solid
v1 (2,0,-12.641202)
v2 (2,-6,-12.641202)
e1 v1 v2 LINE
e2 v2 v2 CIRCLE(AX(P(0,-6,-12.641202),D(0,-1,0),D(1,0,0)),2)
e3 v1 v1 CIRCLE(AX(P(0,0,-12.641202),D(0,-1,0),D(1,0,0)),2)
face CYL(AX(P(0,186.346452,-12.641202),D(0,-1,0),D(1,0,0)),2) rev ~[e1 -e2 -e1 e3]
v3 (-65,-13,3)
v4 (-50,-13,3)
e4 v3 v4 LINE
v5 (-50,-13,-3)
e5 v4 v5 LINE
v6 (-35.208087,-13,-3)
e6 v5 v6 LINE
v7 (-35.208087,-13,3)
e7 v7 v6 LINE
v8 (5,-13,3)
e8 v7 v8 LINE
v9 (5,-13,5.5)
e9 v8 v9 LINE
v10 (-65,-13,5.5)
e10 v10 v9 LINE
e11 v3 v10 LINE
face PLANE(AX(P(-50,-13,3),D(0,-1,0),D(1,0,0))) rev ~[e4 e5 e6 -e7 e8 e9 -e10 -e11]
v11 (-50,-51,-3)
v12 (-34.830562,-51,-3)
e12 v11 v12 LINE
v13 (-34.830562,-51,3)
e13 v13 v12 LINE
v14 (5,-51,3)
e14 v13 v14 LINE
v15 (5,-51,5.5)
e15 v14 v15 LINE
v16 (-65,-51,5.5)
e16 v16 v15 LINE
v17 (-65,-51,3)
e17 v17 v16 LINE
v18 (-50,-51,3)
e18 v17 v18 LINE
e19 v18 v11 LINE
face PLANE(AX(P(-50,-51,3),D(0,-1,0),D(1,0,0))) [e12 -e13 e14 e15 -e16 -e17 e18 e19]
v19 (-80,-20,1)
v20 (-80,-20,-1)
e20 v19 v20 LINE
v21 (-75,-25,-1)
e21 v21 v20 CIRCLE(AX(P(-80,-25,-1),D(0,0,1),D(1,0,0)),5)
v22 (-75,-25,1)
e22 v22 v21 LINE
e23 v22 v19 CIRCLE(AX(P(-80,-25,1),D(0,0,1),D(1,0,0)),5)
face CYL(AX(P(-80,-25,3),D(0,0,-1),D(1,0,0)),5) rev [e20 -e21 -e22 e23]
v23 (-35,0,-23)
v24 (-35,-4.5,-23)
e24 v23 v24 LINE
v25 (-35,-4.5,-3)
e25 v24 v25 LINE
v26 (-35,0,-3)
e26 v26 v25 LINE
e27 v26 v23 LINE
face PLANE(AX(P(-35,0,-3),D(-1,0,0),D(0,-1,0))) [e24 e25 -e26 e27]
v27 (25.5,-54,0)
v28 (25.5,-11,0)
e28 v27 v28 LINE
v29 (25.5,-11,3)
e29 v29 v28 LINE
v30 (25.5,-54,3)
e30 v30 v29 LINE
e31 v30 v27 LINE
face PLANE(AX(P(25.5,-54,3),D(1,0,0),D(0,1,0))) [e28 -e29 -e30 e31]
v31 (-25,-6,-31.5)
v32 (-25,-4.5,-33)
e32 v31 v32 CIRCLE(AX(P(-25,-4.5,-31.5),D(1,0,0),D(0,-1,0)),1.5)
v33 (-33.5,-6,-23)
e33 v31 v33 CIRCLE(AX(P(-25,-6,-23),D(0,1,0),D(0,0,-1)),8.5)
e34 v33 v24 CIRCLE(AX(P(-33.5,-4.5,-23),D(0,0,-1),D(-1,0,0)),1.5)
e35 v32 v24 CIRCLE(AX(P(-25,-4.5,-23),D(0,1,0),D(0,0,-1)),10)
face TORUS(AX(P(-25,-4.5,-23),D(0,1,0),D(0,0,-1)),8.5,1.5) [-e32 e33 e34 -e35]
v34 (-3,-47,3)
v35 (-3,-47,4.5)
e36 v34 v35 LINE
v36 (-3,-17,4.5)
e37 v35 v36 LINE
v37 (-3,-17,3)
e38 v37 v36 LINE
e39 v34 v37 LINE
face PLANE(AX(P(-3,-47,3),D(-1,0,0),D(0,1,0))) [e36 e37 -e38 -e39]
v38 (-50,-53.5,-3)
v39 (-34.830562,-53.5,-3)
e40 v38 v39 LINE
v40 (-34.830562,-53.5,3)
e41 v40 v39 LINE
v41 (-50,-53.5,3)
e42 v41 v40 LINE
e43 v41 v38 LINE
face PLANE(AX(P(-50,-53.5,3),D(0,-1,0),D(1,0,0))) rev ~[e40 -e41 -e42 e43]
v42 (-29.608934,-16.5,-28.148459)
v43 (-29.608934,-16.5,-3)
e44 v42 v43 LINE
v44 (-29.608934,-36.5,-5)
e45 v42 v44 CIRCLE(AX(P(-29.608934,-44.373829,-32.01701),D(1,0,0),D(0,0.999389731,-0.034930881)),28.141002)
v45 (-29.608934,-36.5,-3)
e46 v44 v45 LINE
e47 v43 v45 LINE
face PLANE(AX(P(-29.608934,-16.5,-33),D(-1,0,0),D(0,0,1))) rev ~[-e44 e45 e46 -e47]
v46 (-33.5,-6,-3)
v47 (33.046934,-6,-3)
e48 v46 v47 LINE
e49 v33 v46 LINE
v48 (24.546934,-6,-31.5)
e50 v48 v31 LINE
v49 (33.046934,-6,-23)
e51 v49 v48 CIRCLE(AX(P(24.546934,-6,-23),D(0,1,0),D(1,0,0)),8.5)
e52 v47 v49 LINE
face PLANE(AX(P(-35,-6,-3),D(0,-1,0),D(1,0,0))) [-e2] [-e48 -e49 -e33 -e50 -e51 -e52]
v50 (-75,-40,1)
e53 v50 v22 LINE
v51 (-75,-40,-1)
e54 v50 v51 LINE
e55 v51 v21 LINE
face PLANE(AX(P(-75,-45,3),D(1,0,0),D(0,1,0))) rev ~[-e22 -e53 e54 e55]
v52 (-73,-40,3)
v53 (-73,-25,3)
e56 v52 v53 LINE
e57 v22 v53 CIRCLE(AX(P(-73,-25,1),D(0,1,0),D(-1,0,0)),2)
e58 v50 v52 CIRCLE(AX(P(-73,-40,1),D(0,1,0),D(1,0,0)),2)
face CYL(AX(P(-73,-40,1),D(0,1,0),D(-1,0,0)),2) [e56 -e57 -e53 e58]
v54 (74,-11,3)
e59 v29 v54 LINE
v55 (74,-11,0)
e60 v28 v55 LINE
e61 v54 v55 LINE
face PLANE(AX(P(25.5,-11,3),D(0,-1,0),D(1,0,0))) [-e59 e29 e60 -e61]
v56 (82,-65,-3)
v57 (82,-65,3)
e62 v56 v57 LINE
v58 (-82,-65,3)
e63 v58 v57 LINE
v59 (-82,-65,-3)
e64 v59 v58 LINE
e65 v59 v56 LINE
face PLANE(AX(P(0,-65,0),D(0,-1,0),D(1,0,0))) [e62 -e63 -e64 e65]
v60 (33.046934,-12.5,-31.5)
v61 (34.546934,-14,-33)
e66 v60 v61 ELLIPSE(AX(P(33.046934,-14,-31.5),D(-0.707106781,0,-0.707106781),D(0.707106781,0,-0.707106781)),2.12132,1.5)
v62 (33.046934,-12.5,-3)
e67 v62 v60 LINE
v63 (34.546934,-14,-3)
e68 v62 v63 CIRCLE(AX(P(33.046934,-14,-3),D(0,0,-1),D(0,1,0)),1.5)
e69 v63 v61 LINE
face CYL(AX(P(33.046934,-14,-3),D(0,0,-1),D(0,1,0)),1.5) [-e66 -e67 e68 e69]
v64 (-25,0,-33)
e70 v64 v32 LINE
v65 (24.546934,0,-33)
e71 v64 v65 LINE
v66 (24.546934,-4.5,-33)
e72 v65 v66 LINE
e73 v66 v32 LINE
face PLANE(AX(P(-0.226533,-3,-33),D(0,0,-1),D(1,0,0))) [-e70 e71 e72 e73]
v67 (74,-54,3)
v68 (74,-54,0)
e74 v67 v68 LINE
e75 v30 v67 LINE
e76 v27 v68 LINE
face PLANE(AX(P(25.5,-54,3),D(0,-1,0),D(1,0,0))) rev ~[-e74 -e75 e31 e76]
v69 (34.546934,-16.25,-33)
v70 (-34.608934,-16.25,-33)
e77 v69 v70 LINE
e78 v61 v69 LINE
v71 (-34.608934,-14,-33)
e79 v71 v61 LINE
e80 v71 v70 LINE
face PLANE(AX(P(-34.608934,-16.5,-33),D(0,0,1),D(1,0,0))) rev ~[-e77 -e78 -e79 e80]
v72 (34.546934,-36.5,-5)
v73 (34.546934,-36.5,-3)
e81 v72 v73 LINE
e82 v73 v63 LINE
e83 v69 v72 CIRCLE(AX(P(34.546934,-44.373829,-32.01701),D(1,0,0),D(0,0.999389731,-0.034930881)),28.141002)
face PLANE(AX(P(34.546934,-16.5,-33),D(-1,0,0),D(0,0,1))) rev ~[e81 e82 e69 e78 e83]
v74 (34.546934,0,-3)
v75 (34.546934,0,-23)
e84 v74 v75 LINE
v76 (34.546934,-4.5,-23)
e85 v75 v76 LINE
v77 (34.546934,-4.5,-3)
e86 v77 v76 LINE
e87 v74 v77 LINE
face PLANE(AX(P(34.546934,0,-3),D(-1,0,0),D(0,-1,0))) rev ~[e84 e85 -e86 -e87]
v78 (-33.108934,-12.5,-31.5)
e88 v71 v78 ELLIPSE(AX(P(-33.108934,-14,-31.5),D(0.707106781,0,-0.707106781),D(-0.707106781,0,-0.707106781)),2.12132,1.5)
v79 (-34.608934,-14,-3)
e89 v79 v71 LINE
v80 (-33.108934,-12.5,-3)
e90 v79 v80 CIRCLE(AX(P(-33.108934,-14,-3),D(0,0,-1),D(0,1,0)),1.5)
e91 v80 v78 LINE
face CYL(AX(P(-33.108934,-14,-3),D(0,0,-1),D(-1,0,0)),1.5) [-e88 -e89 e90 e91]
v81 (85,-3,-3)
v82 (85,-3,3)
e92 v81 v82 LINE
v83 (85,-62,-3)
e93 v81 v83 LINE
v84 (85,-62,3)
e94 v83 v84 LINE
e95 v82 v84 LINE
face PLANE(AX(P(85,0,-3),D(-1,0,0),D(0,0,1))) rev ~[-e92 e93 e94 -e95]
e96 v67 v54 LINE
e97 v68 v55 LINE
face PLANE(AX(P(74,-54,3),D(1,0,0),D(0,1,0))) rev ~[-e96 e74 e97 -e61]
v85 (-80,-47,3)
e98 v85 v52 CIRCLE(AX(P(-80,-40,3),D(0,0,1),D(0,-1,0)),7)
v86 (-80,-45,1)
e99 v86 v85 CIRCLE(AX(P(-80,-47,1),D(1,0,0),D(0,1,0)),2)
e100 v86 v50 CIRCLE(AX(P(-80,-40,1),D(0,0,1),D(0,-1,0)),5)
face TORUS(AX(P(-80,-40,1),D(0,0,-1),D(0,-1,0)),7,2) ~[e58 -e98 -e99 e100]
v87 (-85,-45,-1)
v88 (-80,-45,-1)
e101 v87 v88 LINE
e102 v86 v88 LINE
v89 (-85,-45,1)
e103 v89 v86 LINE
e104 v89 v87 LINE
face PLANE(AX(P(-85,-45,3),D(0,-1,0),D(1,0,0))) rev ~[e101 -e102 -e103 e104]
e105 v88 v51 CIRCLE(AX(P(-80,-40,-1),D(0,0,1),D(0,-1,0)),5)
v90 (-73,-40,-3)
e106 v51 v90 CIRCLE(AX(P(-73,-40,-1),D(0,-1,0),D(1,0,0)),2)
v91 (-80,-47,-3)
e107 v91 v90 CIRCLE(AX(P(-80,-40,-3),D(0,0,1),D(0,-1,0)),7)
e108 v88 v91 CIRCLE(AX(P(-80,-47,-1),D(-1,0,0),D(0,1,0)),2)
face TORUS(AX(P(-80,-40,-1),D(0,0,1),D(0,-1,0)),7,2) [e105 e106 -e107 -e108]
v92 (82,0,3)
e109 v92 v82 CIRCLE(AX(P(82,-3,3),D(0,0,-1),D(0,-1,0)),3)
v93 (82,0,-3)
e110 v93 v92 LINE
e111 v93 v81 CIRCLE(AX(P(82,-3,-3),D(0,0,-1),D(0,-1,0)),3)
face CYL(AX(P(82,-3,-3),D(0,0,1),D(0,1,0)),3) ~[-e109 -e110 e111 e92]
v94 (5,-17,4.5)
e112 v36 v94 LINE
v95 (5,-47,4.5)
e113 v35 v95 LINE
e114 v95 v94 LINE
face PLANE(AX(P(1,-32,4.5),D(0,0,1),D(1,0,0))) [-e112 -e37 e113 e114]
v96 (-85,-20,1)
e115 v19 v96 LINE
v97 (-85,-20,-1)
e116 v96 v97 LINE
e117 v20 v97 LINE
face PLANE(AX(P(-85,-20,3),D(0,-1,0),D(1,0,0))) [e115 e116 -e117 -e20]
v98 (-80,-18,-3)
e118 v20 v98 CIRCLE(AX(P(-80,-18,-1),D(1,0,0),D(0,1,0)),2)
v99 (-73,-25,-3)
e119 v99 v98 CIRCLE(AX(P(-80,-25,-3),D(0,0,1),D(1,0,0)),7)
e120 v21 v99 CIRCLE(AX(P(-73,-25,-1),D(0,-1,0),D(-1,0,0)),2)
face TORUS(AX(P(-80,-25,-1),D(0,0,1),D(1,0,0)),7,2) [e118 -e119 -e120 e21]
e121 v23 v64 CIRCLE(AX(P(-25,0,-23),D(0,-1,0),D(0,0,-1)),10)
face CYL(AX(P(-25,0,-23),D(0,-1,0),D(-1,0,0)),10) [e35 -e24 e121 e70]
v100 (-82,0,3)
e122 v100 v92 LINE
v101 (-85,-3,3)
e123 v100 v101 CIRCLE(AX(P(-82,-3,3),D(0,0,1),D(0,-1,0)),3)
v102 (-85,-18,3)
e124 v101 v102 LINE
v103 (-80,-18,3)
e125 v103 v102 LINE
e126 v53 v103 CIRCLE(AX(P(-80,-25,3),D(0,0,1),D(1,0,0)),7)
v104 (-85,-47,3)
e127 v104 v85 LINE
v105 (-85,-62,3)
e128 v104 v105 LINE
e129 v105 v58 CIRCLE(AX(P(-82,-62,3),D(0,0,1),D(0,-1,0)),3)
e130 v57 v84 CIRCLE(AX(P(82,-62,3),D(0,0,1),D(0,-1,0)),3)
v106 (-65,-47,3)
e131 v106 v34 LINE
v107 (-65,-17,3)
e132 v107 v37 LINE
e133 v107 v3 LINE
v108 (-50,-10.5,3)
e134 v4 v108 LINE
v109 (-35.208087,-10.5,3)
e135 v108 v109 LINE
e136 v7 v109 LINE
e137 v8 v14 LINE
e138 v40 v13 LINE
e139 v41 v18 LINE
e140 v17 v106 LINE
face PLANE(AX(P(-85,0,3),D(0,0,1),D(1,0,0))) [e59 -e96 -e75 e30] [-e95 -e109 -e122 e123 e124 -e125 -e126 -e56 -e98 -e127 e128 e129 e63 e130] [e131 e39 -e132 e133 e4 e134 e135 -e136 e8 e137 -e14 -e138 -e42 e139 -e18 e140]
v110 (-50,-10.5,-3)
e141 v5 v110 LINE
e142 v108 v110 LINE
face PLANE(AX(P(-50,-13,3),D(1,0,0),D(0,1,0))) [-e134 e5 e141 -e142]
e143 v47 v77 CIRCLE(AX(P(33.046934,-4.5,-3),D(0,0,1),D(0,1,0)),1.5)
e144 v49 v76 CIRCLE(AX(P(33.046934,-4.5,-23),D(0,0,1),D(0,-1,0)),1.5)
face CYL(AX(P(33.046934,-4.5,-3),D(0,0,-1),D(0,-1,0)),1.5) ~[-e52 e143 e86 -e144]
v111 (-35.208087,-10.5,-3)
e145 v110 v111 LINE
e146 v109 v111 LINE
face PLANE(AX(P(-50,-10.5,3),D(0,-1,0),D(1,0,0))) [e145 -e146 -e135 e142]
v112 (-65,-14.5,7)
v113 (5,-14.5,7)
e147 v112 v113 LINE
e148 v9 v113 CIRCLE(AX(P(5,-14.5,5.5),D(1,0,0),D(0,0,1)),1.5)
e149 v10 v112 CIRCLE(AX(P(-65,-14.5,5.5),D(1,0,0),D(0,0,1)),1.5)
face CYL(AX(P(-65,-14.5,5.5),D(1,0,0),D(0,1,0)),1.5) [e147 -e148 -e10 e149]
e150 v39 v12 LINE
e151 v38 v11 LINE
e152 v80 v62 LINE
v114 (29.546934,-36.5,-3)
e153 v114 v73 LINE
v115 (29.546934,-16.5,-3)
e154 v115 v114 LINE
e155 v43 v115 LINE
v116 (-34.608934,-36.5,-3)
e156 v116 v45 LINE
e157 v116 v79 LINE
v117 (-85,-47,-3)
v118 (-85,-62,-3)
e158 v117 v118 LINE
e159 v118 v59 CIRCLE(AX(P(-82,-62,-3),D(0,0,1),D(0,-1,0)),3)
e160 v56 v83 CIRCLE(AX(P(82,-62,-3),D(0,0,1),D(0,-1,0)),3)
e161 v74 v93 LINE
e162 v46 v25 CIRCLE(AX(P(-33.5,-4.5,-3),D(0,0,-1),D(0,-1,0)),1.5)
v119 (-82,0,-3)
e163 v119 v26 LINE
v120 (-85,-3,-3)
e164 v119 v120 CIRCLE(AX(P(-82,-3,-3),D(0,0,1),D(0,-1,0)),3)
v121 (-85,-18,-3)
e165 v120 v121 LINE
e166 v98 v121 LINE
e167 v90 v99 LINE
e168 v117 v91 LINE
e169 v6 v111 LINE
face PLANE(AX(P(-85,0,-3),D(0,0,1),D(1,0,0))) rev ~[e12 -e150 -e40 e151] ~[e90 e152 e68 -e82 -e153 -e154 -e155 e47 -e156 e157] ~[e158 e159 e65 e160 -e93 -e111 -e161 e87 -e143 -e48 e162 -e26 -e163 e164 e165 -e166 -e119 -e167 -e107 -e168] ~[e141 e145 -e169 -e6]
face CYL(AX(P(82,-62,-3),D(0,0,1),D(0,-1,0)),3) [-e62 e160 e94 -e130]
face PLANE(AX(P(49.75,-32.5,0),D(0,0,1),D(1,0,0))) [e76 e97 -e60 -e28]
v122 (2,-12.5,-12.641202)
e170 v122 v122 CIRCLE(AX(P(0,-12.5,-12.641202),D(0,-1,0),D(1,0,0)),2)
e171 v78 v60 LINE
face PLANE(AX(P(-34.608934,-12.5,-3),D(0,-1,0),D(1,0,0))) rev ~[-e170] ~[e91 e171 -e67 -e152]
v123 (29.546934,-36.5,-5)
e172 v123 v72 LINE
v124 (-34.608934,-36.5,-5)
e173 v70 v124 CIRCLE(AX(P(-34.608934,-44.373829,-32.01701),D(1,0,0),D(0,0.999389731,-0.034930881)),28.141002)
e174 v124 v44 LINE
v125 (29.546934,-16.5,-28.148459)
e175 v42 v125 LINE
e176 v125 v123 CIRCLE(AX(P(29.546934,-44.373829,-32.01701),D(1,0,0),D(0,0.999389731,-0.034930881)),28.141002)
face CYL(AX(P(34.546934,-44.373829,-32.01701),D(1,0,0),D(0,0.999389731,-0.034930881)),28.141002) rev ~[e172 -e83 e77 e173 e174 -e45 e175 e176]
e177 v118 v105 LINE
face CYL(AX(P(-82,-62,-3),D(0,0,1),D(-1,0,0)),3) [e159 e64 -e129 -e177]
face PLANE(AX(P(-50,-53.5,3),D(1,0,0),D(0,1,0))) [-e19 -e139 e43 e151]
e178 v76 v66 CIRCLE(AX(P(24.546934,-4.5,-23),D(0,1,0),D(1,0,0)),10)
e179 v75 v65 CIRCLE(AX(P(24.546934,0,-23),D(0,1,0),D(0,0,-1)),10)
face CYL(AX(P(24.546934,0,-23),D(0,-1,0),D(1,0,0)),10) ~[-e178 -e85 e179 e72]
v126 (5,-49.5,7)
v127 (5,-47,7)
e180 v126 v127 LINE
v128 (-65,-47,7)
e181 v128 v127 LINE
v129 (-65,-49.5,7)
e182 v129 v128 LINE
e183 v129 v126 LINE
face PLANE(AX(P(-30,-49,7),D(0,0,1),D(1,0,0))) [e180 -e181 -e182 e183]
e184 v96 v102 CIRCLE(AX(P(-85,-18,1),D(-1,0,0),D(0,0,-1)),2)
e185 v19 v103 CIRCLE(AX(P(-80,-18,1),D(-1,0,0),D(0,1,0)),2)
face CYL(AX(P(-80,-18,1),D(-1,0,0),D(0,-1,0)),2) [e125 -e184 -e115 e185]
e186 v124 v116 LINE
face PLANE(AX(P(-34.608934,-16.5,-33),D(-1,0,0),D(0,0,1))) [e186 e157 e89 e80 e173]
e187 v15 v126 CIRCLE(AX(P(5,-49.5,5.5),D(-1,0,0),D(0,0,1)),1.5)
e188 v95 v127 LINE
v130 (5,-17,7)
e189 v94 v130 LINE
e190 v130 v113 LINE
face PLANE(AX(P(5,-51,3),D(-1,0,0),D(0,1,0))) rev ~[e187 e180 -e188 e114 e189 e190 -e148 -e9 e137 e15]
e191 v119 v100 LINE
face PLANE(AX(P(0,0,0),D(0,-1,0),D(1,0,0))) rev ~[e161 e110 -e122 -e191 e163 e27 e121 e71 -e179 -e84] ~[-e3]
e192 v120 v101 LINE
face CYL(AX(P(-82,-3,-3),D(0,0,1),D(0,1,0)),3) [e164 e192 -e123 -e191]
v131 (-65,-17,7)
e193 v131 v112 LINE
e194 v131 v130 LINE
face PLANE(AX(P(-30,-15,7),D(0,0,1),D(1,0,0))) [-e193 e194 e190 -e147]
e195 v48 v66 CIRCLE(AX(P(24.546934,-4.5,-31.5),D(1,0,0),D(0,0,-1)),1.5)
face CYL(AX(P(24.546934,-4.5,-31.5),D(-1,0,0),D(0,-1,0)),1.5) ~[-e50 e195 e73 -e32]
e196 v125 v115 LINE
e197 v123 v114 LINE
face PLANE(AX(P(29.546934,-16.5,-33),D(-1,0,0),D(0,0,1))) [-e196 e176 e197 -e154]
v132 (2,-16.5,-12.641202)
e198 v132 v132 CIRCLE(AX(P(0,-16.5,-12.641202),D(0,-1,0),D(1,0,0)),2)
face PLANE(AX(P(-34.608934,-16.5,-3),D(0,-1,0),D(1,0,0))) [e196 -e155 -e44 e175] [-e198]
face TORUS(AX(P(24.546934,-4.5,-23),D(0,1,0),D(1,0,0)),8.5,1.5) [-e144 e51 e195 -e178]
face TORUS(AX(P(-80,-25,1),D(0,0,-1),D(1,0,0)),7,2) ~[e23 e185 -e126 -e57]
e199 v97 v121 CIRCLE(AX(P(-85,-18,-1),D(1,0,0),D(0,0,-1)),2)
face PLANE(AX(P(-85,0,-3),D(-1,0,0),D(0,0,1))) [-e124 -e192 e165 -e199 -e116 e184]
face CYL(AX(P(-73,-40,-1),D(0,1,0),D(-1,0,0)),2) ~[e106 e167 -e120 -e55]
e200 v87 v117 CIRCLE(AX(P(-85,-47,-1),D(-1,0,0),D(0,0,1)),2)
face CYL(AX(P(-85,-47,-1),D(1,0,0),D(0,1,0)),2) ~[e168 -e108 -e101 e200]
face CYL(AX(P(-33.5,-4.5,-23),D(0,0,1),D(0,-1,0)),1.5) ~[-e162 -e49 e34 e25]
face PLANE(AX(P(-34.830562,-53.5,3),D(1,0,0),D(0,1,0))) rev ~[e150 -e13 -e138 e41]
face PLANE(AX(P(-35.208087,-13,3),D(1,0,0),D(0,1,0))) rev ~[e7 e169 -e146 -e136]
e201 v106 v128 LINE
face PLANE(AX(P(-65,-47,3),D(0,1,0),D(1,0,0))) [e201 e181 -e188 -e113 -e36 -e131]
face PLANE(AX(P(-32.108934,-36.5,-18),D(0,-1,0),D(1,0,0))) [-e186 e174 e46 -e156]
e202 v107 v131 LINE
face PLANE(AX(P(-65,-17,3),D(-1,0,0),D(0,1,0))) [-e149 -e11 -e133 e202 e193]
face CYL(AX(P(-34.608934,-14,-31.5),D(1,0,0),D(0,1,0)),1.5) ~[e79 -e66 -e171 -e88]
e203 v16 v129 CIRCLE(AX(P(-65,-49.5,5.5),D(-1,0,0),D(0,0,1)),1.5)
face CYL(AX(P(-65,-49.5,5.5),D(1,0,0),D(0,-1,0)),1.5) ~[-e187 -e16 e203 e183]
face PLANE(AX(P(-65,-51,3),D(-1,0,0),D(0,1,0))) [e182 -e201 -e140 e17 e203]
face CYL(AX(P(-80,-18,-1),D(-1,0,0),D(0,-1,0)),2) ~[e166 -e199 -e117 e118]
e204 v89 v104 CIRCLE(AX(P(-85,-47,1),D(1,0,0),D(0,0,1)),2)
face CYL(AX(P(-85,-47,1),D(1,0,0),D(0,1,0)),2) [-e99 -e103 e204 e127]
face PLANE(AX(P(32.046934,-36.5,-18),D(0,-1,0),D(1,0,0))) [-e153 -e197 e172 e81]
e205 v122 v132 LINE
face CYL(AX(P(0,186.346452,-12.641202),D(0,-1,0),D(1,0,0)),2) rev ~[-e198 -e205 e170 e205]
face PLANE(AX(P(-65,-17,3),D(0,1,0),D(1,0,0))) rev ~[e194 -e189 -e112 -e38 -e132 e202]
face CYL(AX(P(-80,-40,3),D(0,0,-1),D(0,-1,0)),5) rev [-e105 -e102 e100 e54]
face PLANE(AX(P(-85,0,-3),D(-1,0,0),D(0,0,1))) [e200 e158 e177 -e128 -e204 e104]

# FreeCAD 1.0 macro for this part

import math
import FreeCAD as App
import Part
import Sketcher


def edges_at(feature, points):
    """Names of the edges that pass closest to the given points."""
    edges = feature.Shape.Edges
    near = lambda p: min(range(len(edges)), key=lambda i: edges[i].distToShape(Part.Vertex(*p))[0])
    return sorted({f"Edge{near(p) + 1}" for p in points})

doc = App.newDocument("Part")
params = doc.addObject("Spreadsheet::Sheet", "Params")
for row, (alias, value) in enumerate([
    ("sketch1_width", "170 mm"),
    ("sketch1_height", "6 mm"),
    ("pad1_length", "65 mm"),
    ("sketch2_height", "43 mm"),
    ("sketch2_width", "48.5 mm"),
    ("pocket1_length", "3 mm"),
    ("sketch3_width", "70 mm"),
    ("sketch3_height", "4 mm"),
    ("pad2_length", "4 mm"),
    ("sketch4_height", "4 mm"),
    ("sketch4_height2", "6 mm"),
    ("pad3_length", "30 mm"),
    ("sketch5_width", "5 mm"),
    ("sketch5_height", "30 mm"),
    ("pad4_length", "20 mm"),
    ("chamfer_size", "28 mm"),
    ("chamfer_size2", "18 mm"),
    ("chamfer2_size", "28 mm"),
    ("chamfer2_size2", "18 mm"),
    ("sketch6_height", "2.5 mm"),
    ("fillet_radius", "10 mm"),
    ("fillet2_radius", "1.5 mm"),
    ("fillet3_radius", "1.5 mm"),
    ("fillet4_radius", "3 mm"),
    ("sketch7_width", "2.25 mm"),
    ("sketch8_diameter", "4 mm"),
    ("hole_diameter", "4 mm"),
    ("sketch9_width", "10 mm"),
    ("sketch9_height", "25 mm"),
    ("pocket4_length", "25 mm"),
    ("fillet5_radius", "5 mm"),
    ("fillet6_radius", "2 mm"),
    ("fillet7_radius", "2 mm"),
    ("fillet8_radius", "1.5 mm"),
    ("sketch10_width", "8 mm"),
    ("sketch10_height", "30 mm"),
    ("pad5_length", "1.5 mm"),
], start=1):
    params.set(f"A{row}", alias)
    params.set(f"B{row}", "=" + value)
    params.setAlias(f"B{row}", alias)

body = doc.addObject("PartDesign::Body", "Body")

sketch1 = body.newObject("Sketcher::SketchObject", "Sketch")
sketch1.AttachmentSupport = (doc.getObject("XZ_Plane"), [""])
sketch1.MapMode = "FlatFace"
sketch1.addGeometry(Part.LineSegment(App.Vector(-85, 3, 0), App.Vector(-85, -3, 0)), False)
sketch1.addGeometry(Part.LineSegment(App.Vector(-85, -3, 0), App.Vector(85, -3, 0)), False)
sketch1.addGeometry(Part.LineSegment(App.Vector(85, -3, 0), App.Vector(85, 3, 0)), False)
sketch1.addGeometry(Part.LineSegment(App.Vector(85, 3, 0), App.Vector(-85, 3, 0)), False)
sketch1.addConstraint(Sketcher.Constraint("Coincident", 0, 2, 1, 1))
sketch1.addConstraint(Sketcher.Constraint("Coincident", 1, 2, 2, 1))
sketch1.addConstraint(Sketcher.Constraint("Coincident", 2, 2, 3, 1))
sketch1.addConstraint(Sketcher.Constraint("Coincident", 3, 2, 0, 1))
sketch1.addConstraint(Sketcher.Constraint("Vertical", 0))
sketch1.addConstraint(Sketcher.Constraint("Horizontal", 1))
sketch1.addConstraint(Sketcher.Constraint("Vertical", 2))
sketch1.addConstraint(Sketcher.Constraint("Horizontal", 3))
sketch1.addConstraint(Sketcher.Constraint("Symmetric", 0, 2, 2, 2, -1, 1))
sketch1.addConstraint(Sketcher.Constraint("DistanceX", 1, 1, 1, 2, 170.0))
sketch1.addConstraint(Sketcher.Constraint("DistanceY", 0, 2, 0, 1, 6.0))
sketch1.setExpression("Constraints[9]", "Params.sketch1_width")
sketch1.setExpression("Constraints[10]", "Params.sketch1_height")
pad1 = body.newObject("PartDesign::Pad", "Pad")
pad1.Profile = sketch1
pad1.setExpression("Length", "Params.pad1_length")

sketch2 = body.newObject("Sketcher::SketchObject", "Sketch001")
sketch2.AttachmentSupport = (doc.getObject("XY_Plane"), [""])
sketch2.MapMode = "FlatFace"
sketch2.AttachmentOffset = App.Placement(App.Vector(0, 0, 3), App.Rotation())
sketch2.addGeometry(Part.LineSegment(App.Vector(25.5, -11, 0), App.Vector(25.5, -54, 0)), False)
sketch2.addGeometry(Part.LineSegment(App.Vector(25.5, -54, 0), App.Vector(74, -54, 0)), False)
sketch2.addGeometry(Part.LineSegment(App.Vector(74, -54, 0), App.Vector(74, -11, 0)), False)
sketch2.addGeometry(Part.LineSegment(App.Vector(74, -11, 0), App.Vector(25.5, -11, 0)), False)
sketch2.addConstraint(Sketcher.Constraint("Coincident", 0, 2, 1, 1))
sketch2.addConstraint(Sketcher.Constraint("Coincident", 1, 2, 2, 1))
sketch2.addConstraint(Sketcher.Constraint("Coincident", 2, 2, 3, 1))
sketch2.addConstraint(Sketcher.Constraint("Coincident", 3, 2, 0, 1))
sketch2.addConstraint(Sketcher.Constraint("Vertical", 0))
sketch2.addConstraint(Sketcher.Constraint("Horizontal", 1))
sketch2.addConstraint(Sketcher.Constraint("Vertical", 2))
sketch2.addConstraint(Sketcher.Constraint("Horizontal", 3))
sketch2.addConstraint(Sketcher.Constraint("DistanceY", 0, 2, 0, 1, 43.0))
sketch2.addConstraint(Sketcher.Constraint("DistanceX", 1, 1, 1, 2, 48.5))
sketch2.addConstraint(Sketcher.Constraint("DistanceY", 0, 2, -1, 1, 54.0))
sketch2.addConstraint(Sketcher.Constraint("DistanceX", -1, 1, 1, 2, 74.0))
sketch2.setExpression("Constraints[8]", "Params.sketch2_height")
sketch2.setExpression("Constraints[9]", "Params.sketch2_width")
pocket1 = body.newObject("PartDesign::Pocket", "Pocket")
pocket1.Profile = sketch2
pocket1.setExpression("Length", "Params.pocket1_length")

sketch3 = body.newObject("Sketcher::SketchObject", "Sketch002")
sketch3.AttachmentSupport = (doc.getObject("XY_Plane"), [""])
sketch3.MapMode = "FlatFace"
sketch3.AttachmentOffset = App.Placement(App.Vector(0, 0, 3), App.Rotation())
sketch3.addGeometry(Part.LineSegment(App.Vector(-65, -13, 0), App.Vector(-65, -17, 0)), False)
sketch3.addGeometry(Part.LineSegment(App.Vector(-65, -17, 0), App.Vector(5, -17, 0)), False)
sketch3.addGeometry(Part.LineSegment(App.Vector(5, -17, 0), App.Vector(5, -13, 0)), False)
sketch3.addGeometry(Part.LineSegment(App.Vector(5, -13, 0), App.Vector(-65, -13, 0)), False)
sketch3.addGeometry(Part.LineSegment(App.Vector(-65, -47, 0), App.Vector(-65, -51, 0)), False)
sketch3.addGeometry(Part.LineSegment(App.Vector(-65, -51, 0), App.Vector(5, -51, 0)), False)
sketch3.addGeometry(Part.LineSegment(App.Vector(5, -51, 0), App.Vector(5, -47, 0)), False)
sketch3.addGeometry(Part.LineSegment(App.Vector(5, -47, 0), App.Vector(-65, -47, 0)), False)
sketch3.addConstraint(Sketcher.Constraint("Coincident", 0, 2, 1, 1))
sketch3.addConstraint(Sketcher.Constraint("Coincident", 1, 2, 2, 1))
sketch3.addConstraint(Sketcher.Constraint("Coincident", 2, 2, 3, 1))
sketch3.addConstraint(Sketcher.Constraint("Coincident", 3, 2, 0, 1))
sketch3.addConstraint(Sketcher.Constraint("Coincident", 4, 2, 5, 1))
sketch3.addConstraint(Sketcher.Constraint("Coincident", 5, 2, 6, 1))
sketch3.addConstraint(Sketcher.Constraint("Coincident", 6, 2, 7, 1))
sketch3.addConstraint(Sketcher.Constraint("Coincident", 7, 2, 4, 1))
sketch3.addConstraint(Sketcher.Constraint("Vertical", 0))
sketch3.addConstraint(Sketcher.Constraint("Horizontal", 1))
sketch3.addConstraint(Sketcher.Constraint("Vertical", 2))
sketch3.addConstraint(Sketcher.Constraint("Horizontal", 3))
sketch3.addConstraint(Sketcher.Constraint("Vertical", 4))
sketch3.addConstraint(Sketcher.Constraint("Horizontal", 5))
sketch3.addConstraint(Sketcher.Constraint("Vertical", 6))
sketch3.addConstraint(Sketcher.Constraint("Horizontal", 7))
sketch3.addConstraint(Sketcher.Constraint("Vertical", 3, 2, 4, 2))
sketch3.addConstraint(Sketcher.Constraint("Vertical", 2, 2, 5, 2))
sketch3.addConstraint(Sketcher.Constraint("Equal", 2, 4))
sketch3.addConstraint(Sketcher.Constraint("DistanceX", 1, 1, 1, 2, 70.0))
sketch3.addConstraint(Sketcher.Constraint("DistanceY", 0, 2, 0, 1, 4.0))
sketch3.addConstraint(Sketcher.Constraint("DistanceX", 0, 2, -1, 1, 65.0))
sketch3.addConstraint(Sketcher.Constraint("DistanceY", 0, 2, -1, 1, 17.0))
sketch3.addConstraint(Sketcher.Constraint("DistanceY", 4, 2, -1, 1, 51.0))
sketch3.setExpression("Constraints[19]", "Params.sketch3_width")
sketch3.setExpression("Constraints[20]", "Params.sketch3_height")
pad2 = body.newObject("PartDesign::Pad", "Pad001")
pad2.Profile = sketch3
pad2.setExpression("Length", "Params.pad2_length")

sketch4 = body.newObject("Sketcher::SketchObject", "Sketch003")
sketch4.AttachmentSupport = (doc.getObject("XY_Plane"), [""])
sketch4.MapMode = "FlatFace"
sketch4.AttachmentOffset = App.Placement(App.Vector(0, 0, -3), App.Rotation())
sketch4.addGeometry(Part.LineSegment(App.Vector(-34.608934, -16.5, 0), App.Vector(-34.608934, -12.5, 0)), False)
sketch4.addGeometry(Part.LineSegment(App.Vector(-34.608934, -12.5, 0), App.Vector(34.546934, -12.5, 0)), False)
sketch4.addGeometry(Part.LineSegment(App.Vector(34.546934, -12.5, 0), App.Vector(34.546934, -16.5, 0)), False)
sketch4.addGeometry(Part.LineSegment(App.Vector(34.546934, -16.5, 0), App.Vector(-34.608934, -16.5, 0)), False)
sketch4.addGeometry(Part.LineSegment(App.Vector(-35, -6, 0), App.Vector(-35, 0, 0)), False)
sketch4.addGeometry(Part.LineSegment(App.Vector(-35, 0, 0), App.Vector(34.546934, 0, 0)), False)
sketch4.addGeometry(Part.LineSegment(App.Vector(34.546934, 0, 0), App.Vector(34.546934, -6, 0)), False)
sketch4.addGeometry(Part.LineSegment(App.Vector(34.546934, -6, 0), App.Vector(-35, -6, 0)), False)
sketch4.addConstraint(Sketcher.Constraint("Coincident", 0, 2, 1, 1))
sketch4.addConstraint(Sketcher.Constraint("Coincident", 1, 2, 2, 1))
sketch4.addConstraint(Sketcher.Constraint("Coincident", 2, 2, 3, 1))
sketch4.addConstraint(Sketcher.Constraint("Coincident", 3, 2, 0, 1))
sketch4.addConstraint(Sketcher.Constraint("Coincident", 4, 2, 5, 1))
sketch4.addConstraint(Sketcher.Constraint("Coincident", 5, 2, 6, 1))
sketch4.addConstraint(Sketcher.Constraint("Coincident", 6, 2, 7, 1))
sketch4.addConstraint(Sketcher.Constraint("Coincident", 7, 2, 4, 1))
sketch4.addConstraint(Sketcher.Constraint("Vertical", 0))
sketch4.addConstraint(Sketcher.Constraint("Horizontal", 1))
sketch4.addConstraint(Sketcher.Constraint("Vertical", 2))
sketch4.addConstraint(Sketcher.Constraint("Horizontal", 3))
sketch4.addConstraint(Sketcher.Constraint("Vertical", 4))
sketch4.addConstraint(Sketcher.Constraint("Horizontal", 5))
sketch4.addConstraint(Sketcher.Constraint("Vertical", 6))
sketch4.addConstraint(Sketcher.Constraint("Horizontal", 7))
sketch4.addConstraint(Sketcher.Constraint("PointOnObject", 4, 2, -1))
sketch4.addConstraint(Sketcher.Constraint("Vertical", 2, 2, 5, 2))
sketch4.addConstraint(Sketcher.Constraint("DistanceY", 0, 1, 0, 2, 4.0))
sketch4.addConstraint(Sketcher.Constraint("DistanceY", 4, 1, 4, 2, 6.0))
sketch4.addConstraint(Sketcher.Constraint("DistanceX", 4, 2, -1, 1, 35.0))
sketch4.addConstraint(Sketcher.Constraint("DistanceY", 0, 2, -1, 1, 12.5))
sketch4.addConstraint(Sketcher.Constraint("DistanceX", 1, 1, 1, 2, 69.155868))
sketch4.addConstraint(Sketcher.Constraint("DistanceX", 5, 1, 5, 2, 69.546934))
sketch4.setExpression("Constraints[18]", "Params.sketch4_height")
sketch4.setExpression("Constraints[19]", "Params.sketch4_height2")
pad3 = body.newObject("PartDesign::Pad", "Pad002")
pad3.Profile = sketch4
pad3.setExpression("Length", "Params.pad3_length")
pad3.Reversed = True

sketch5 = body.newObject("Sketcher::SketchObject", "Sketch004")
sketch5.AttachmentSupport = (doc.getObject("XZ_Plane"), [""])
sketch5.MapMode = "FlatFace"
sketch5.AttachmentOffset = App.Placement(App.Vector(0, 0, 16.5), App.Rotation())
sketch5.addGeometry(Part.LineSegment(App.Vector(-34.608934, -3, 0), App.Vector(-34.608934, -33, 0)), False)
sketch5.addGeometry(Part.LineSegment(App.Vector(-34.608934, -33, 0), App.Vector(-29.608934, -33, 0)), False)
sketch5.addGeometry(Part.LineSegment(App.Vector(-29.608934, -33, 0), App.Vector(-29.608934, -3, 0)), False)
sketch5.addGeometry(Part.LineSegment(App.Vector(-29.608934, -3, 0), App.Vector(-34.608934, -3, 0)), False)
sketch5.addGeometry(Part.LineSegment(App.Vector(29.546934, -3, 0), App.Vector(29.546934, -33, 0)), False)
sketch5.addGeometry(Part.LineSegment(App.Vector(29.546934, -33, 0), App.Vector(34.546934, -33, 0)), False)
sketch5.addGeometry(Part.LineSegment(App.Vector(34.546934, -33, 0), App.Vector(34.546934, -3, 0)), False)
sketch5.addGeometry(Part.LineSegment(App.Vector(34.546934, -3, 0), App.Vector(29.546934, -3, 0)), False)
sketch5.addConstraint(Sketcher.Constraint("Coincident", 0, 2, 1, 1))
sketch5.addConstraint(Sketcher.Constraint("Coincident", 1, 2, 2, 1))
sketch5.addConstraint(Sketcher.Constraint("Coincident", 2, 2, 3, 1))
sketch5.addConstraint(Sketcher.Constraint("Coincident", 3, 2, 0, 1))
sketch5.addConstraint(Sketcher.Constraint("Coincident", 4, 2, 5, 1))
sketch5.addConstraint(Sketcher.Constraint("Coincident", 5, 2, 6, 1))
sketch5.addConstraint(Sketcher.Constraint("Coincident", 6, 2, 7, 1))
sketch5.addConstraint(Sketcher.Constraint("Coincident", 7, 2, 4, 1))
sketch5.addConstraint(Sketcher.Constraint("Vertical", 0))
sketch5.addConstraint(Sketcher.Constraint("Horizontal", 1))
sketch5.addConstraint(Sketcher.Constraint("Vertical", 2))
sketch5.addConstraint(Sketcher.Constraint("Horizontal", 3))
sketch5.addConstraint(Sketcher.Constraint("Vertical", 4))
sketch5.addConstraint(Sketcher.Constraint("Horizontal", 5))
sketch5.addConstraint(Sketcher.Constraint("Vertical", 6))
sketch5.addConstraint(Sketcher.Constraint("Horizontal", 7))
sketch5.addConstraint(Sketcher.Constraint("Horizontal", 1, 2, 4, 2))
sketch5.addConstraint(Sketcher.Constraint("Horizontal", 3, 2, 6, 2))
sketch5.addConstraint(Sketcher.Constraint("Equal", 3, 5))
sketch5.addConstraint(Sketcher.Constraint("DistanceX", 1, 1, 1, 2, 5.0))
sketch5.addConstraint(Sketcher.Constraint("DistanceY", 0, 2, 0, 1, 30.0))
sketch5.addConstraint(Sketcher.Constraint("DistanceY", 0, 2, -1, 1, 33.0))
sketch5.addConstraint(Sketcher.Constraint("DistanceX", 0, 2, -1, 1, 34.608934))
sketch5.addConstraint(Sketcher.Constraint("DistanceX", -1, 1, 4, 2, 29.546934))
sketch5.setExpression("Constraints[19]", "Params.sketch5_width")
sketch5.setExpression("Constraints[20]", "Params.sketch5_height")
pad4 = body.newObject("PartDesign::Pad", "Pad003")
pad4.Profile = sketch5
pad4.setExpression("Length", "Params.pad4_length")
doc.recompute()

chamfer = body.newObject("PartDesign::Chamfer", "Chamfer")
chamfer.Base = (pad4, edges_at(pad4, [(-32.109, -36.5, -33)]))
chamfer.ChamferType = "Two distances"
chamfer.setExpression("Size", "Params.chamfer_size")
chamfer.setExpression("Size2", "Params.chamfer_size2")
doc.recompute()

chamfer2 = body.newObject("PartDesign::Chamfer", "Chamfer001")
chamfer2.Base = (chamfer, edges_at(chamfer, [(32.047, -36.5, -33)]))
chamfer2.ChamferType = "Two distances"
chamfer2.setExpression("Size", "Params.chamfer2_size")
chamfer2.setExpression("Size2", "Params.chamfer2_size2")
chamfer2.FlipDirection = True

sketch6 = body.newObject("Sketcher::SketchObject", "Sketch005")
sketch6.AttachmentSupport = (doc.getObject("XY_Plane"), [""])
sketch6.MapMode = "FlatFace"
sketch6.AttachmentOffset = App.Placement(App.Vector(0, 0, 3), App.Rotation())
sketch6.addGeometry(Part.LineSegment(App.Vector(-50, -10.5, 0), App.Vector(-50, -13, 0)), False)
sketch6.addGeometry(Part.LineSegment(App.Vector(-50, -13, 0), App.Vector(-35.208087, -13, 0)), False)
sketch6.addGeometry(Part.LineSegment(App.Vector(-35.208087, -13, 0), App.Vector(-35.208087, -10.5, 0)), False)
sketch6.addGeometry(Part.LineSegment(App.Vector(-35.208087, -10.5, 0), App.Vector(-50, -10.5, 0)), False)
sketch6.addGeometry(Part.LineSegment(App.Vector(-50, -51, 0), App.Vector(-50, -53.5, 0)), False)
sketch6.addGeometry(Part.LineSegment(App.Vector(-50, -53.5, 0), App.Vector(-34.830562, -53.5, 0)), False)
sketch6.addGeometry(Part.LineSegment(App.Vector(-34.830562, -53.5, 0), App.Vector(-34.830562, -51, 0)), False)
sketch6.addGeometry(Part.LineSegment(App.Vector(-34.830562, -51, 0), App.Vector(-50, -51, 0)), False)
sketch6.addConstraint(Sketcher.Constraint("Coincident", 0, 2, 1, 1))
sketch6.addConstraint(Sketcher.Constraint("Coincident", 1, 2, 2, 1))
sketch6.addConstraint(Sketcher.Constraint("Coincident", 2, 2, 3, 1))
sketch6.addConstraint(Sketcher.Constraint("Coincident", 3, 2, 0, 1))
sketch6.addConstraint(Sketcher.Constraint("Coincident", 4, 2, 5, 1))
sketch6.addConstraint(Sketcher.Constraint("Coincident", 5, 2, 6, 1))
sketch6.addConstraint(Sketcher.Constraint("Coincident", 6, 2, 7, 1))
sketch6.addConstraint(Sketcher.Constraint("Coincident", 7, 2, 4, 1))
sketch6.addConstraint(Sketcher.Constraint("Vertical", 0))
sketch6.addConstraint(Sketcher.Constraint("Horizontal", 1))
sketch6.addConstraint(Sketcher.Constraint("Vertical", 2))
sketch6.addConstraint(Sketcher.Constraint("Horizontal", 3))
sketch6.addConstraint(Sketcher.Constraint("Vertical", 4))
sketch6.addConstraint(Sketcher.Constraint("Horizontal", 5))
sketch6.addConstraint(Sketcher.Constraint("Vertical", 6))
sketch6.addConstraint(Sketcher.Constraint("Horizontal", 7))
sketch6.addConstraint(Sketcher.Constraint("Vertical", 3, 2, 4, 2))
sketch6.addConstraint(Sketcher.Constraint("Equal", 2, 4))
sketch6.addConstraint(Sketcher.Constraint("DistanceY", 0, 2, 0, 1, 2.5))
sketch6.addConstraint(Sketcher.Constraint("DistanceX", 0, 2, -1, 1, 50.0))
sketch6.addConstraint(Sketcher.Constraint("DistanceY", 0, 2, -1, 1, 13.0))
sketch6.addConstraint(Sketcher.Constraint("DistanceY", 6, 2, -1, 1, 51.0))
sketch6.addConstraint(Sketcher.Constraint("DistanceX", 1, 1, 1, 2, 14.791913))
sketch6.addConstraint(Sketcher.Constraint("DistanceX", 5, 1, 5, 2, 15.169438))
sketch6.setExpression("Constraints[18]", "Params.sketch6_height")
pocket2 = body.newObject("PartDesign::Pocket", "Pocket001")
pocket2.Profile = sketch6
pocket2.Type = "ThroughAll"
doc.recompute()

fillet = body.newObject("PartDesign::Fillet", "Fillet")
fillet.Base = (pocket2, edges_at(pocket2, [(-35, -3, -33), (34.547, -3, -33)]))
fillet.setExpression("Radius", "Params.fillet_radius")
doc.recompute()

fillet2 = body.newObject("PartDesign::Fillet", "Fillet001")
fillet2.Base = (fillet, edges_at(fillet, [(-34.609, -12.5, -18), (34.547, -12.5, -18), (-0.031, -12.5, -33)]))
fillet2.setExpression("Radius", "Params.fillet2_radius")
doc.recompute()

fillet3 = body.newObject("PartDesign::Fillet", "Fillet002")
fillet3.Base = (fillet2, edges_at(fillet2, [
    (34.547, -6, -13),
    (31.618, -6, -30.071),
    (-0.227, -6, -33),
    (-32.071, -6, -30.071),
    (-35, -6, -13),
]))
fillet3.setExpression("Radius", "Params.fillet3_radius")
doc.recompute()

fillet4 = body.newObject("PartDesign::Fillet", "Fillet003")
fillet4.Base = (fillet3, edges_at(fillet3, [
    (-85, -65, 0),
    (-85, 0, 0),
    (85, 0, 0),
    (85, -65, 0),
]))
fillet4.setExpression("Radius", "Params.fillet4_radius")

sketch7 = body.newObject("Sketcher::SketchObject", "Sketch006")
sketch7.AttachmentSupport = (doc.getObject("YZ_Plane"), [""])
sketch7.MapMode = "FlatFace"
sketch7.AttachmentOffset = App.Placement(App.Vector(0, 0, 34.546934), App.Rotation())
sketch7.addGeometry(Part.LineSegment(App.Vector(-18.5, -33, 0), App.Vector(-16.25, -33, 0)), False)
sketch7.addGeometry(Part.ArcOfCircle(Part.Circle(App.Vector(-44.373829, -32.01701, 0), App.Vector(0, 0, 1), 28.141002), math.radians(-2.001799), math.radians(73.751782)), False)
sketch7.addGeometry(Part.LineSegment(App.Vector(-36.5, -5, 0), App.Vector(-18.5, -33, 0)), False)
sketch7.addConstraint(Sketcher.Constraint("Coincident", 0, 2, 1, 1))
sketch7.addConstraint(Sketcher.Constraint("Coincident", 1, 2, 2, 1))
sketch7.addConstraint(Sketcher.Constraint("Coincident", 2, 2, 0, 1))
sketch7.addConstraint(Sketcher.Constraint("Horizontal", 0))
sketch7.addConstraint(Sketcher.Constraint("DistanceY", 0, 2, -1, 1, 33.0))
sketch7.addConstraint(Sketcher.Constraint("DistanceY", 1, 2, -1, 1, 5.0))
sketch7.addConstraint(Sketcher.Constraint("DistanceX", 1, 2, 2, 2, 18.0))
sketch7.addConstraint(Sketcher.Constraint("DistanceX", 0, 1, 0, 2, 2.25))
sketch7.addConstraint(Sketcher.Constraint("DistanceX", 1, 2, -1, 1, 36.5))
sketch7.addConstraint(Sketcher.Constraint("Radius", 1, 28.141002))
sketch7.setExpression("Constraints[7]", "Params.sketch7_width")
pocket3 = body.newObject("PartDesign::Pocket", "Pocket002")
pocket3.Profile = sketch7
pocket3.Type = "ThroughAll"

sketch8 = body.newObject("Sketcher::SketchObject", "Sketch007")
sketch8.AttachmentSupport = (doc.getObject("XZ_Plane"), [""])
sketch8.MapMode = "FlatFace"
sketch8.addGeometry(Part.Circle(App.Vector(0, -12.641202, 0), App.Vector(0, 0, 1), 2), False)
sketch8.addConstraint(Sketcher.Constraint("PointOnObject", 0, 3, -2))
sketch8.addConstraint(Sketcher.Constraint("Diameter", 0, 4.0))
sketch8.addConstraint(Sketcher.Constraint("DistanceY", 0, 3, -1, 1, 12.641202))
sketch8.setExpression("Constraints[1]", "Params.sketch8_diameter")
doc.recompute()
hole = body.newObject("PartDesign::Hole", "Hole")
hole.Profile = sketch8
hole.ThreadType = "None"
hole.setExpression("Diameter", "Params.hole_diameter")
hole.DepthType = "ThroughAll"
hole.Reversed = True

sketch9 = body.newObject("Sketcher::SketchObject", "Sketch008")
sketch9.AttachmentSupport = (doc.getObject("XY_Plane"), [""])
sketch9.MapMode = "FlatFace"
sketch9.AttachmentOffset = App.Placement(App.Vector(0, 0, 3), App.Rotation())
sketch9.addGeometry(Part.LineSegment(App.Vector(-85, -20, 0), App.Vector(-85, -45, 0)), False)
sketch9.addGeometry(Part.LineSegment(App.Vector(-85, -45, 0), App.Vector(-75, -45, 0)), False)
sketch9.addGeometry(Part.LineSegment(App.Vector(-75, -45, 0), App.Vector(-75, -20, 0)), False)
sketch9.addGeometry(Part.LineSegment(App.Vector(-75, -20, 0), App.Vector(-85, -20, 0)), False)
sketch9.addConstraint(Sketcher.Constraint("Coincident", 0, 2, 1, 1))
sketch9.addConstraint(Sketcher.Constraint("Coincident", 1, 2, 2, 1))
sketch9.addConstraint(Sketcher.Constraint("Coincident", 2, 2, 3, 1))
sketch9.addConstraint(Sketcher.Constraint("Coincident", 3, 2, 0, 1))
sketch9.addConstraint(Sketcher.Constraint("Vertical", 0))
sketch9.addConstraint(Sketcher.Constraint("Horizontal", 1))
sketch9.addConstraint(Sketcher.Constraint("Vertical", 2))
sketch9.addConstraint(Sketcher.Constraint("Horizontal", 3))
sketch9.addConstraint(Sketcher.Constraint("DistanceX", 1, 1, 1, 2, 10.0))
sketch9.addConstraint(Sketcher.Constraint("DistanceY", 0, 2, 0, 1, 25.0))
sketch9.addConstraint(Sketcher.Constraint("DistanceX", 0, 2, -1, 1, 85.0))
sketch9.addConstraint(Sketcher.Constraint("DistanceY", 0, 2, -1, 1, 45.0))
sketch9.setExpression("Constraints[8]", "Params.sketch9_width")
sketch9.setExpression("Constraints[9]", "Params.sketch9_height")
pocket4 = body.newObject("PartDesign::Pocket", "Pocket003")
pocket4.Profile = sketch9
pocket4.setExpression("Length", "Params.pocket4_length")
doc.recompute()

fillet5 = body.newObject("PartDesign::Fillet", "Fillet004")
fillet5.Base = (pocket4, edges_at(pocket4, [(-75, -20, 0), (-75, -45, 0)]))
fillet5.setExpression("Radius", "Params.fillet5_radius")
doc.recompute()

fillet6 = body.newObject("PartDesign::Fillet", "Fillet005")
fillet6.Base = (fillet5, edges_at(fillet5, [
    (-75, -32.5, 3),
    (-76.464, -21.464, 3),
    (-82.5, -20, 3),
    (-76.464, -43.536, 3),
    (-82.5, -45, 3),
]))
fillet6.setExpression("Radius", "Params.fillet6_radius")
doc.recompute()

fillet7 = body.newObject("PartDesign::Fillet", "Fillet006")
fillet7.Base = (fillet6, edges_at(fillet6, [
    (-82.5, -45, -3),
    (-76.464, -43.536, -3),
    (-75, -32.5, -3),
    (-76.464, -21.464, -3),
    (-82.5, -20, -3),
]))
fillet7.setExpression("Radius", "Params.fillet7_radius")
doc.recompute()

fillet8 = body.newObject("PartDesign::Fillet", "Fillet007")
fillet8.Base = (fillet7, edges_at(fillet7, [(-30, -13, 7), (-30, -51, 7)]))
fillet8.setExpression("Radius", "Params.fillet8_radius")

sketch10 = body.newObject("Sketcher::SketchObject", "Sketch009")
sketch10.AttachmentSupport = (doc.getObject("XY_Plane"), [""])
sketch10.MapMode = "FlatFace"
sketch10.AttachmentOffset = App.Placement(App.Vector(0, 0, 3), App.Rotation())
sketch10.addGeometry(Part.LineSegment(App.Vector(-3, -17, 0), App.Vector(-3, -47, 0)), False)
sketch10.addGeometry(Part.LineSegment(App.Vector(-3, -47, 0), App.Vector(5, -47, 0)), False)
sketch10.addGeometry(Part.LineSegment(App.Vector(5, -47, 0), App.Vector(5, -17, 0)), False)
sketch10.addGeometry(Part.LineSegment(App.Vector(5, -17, 0), App.Vector(-3, -17, 0)), False)
sketch10.addConstraint(Sketcher.Constraint("Coincident", 0, 2, 1, 1))
sketch10.addConstraint(Sketcher.Constraint("Coincident", 1, 2, 2, 1))
sketch10.addConstraint(Sketcher.Constraint("Coincident", 2, 2, 3, 1))
sketch10.addConstraint(Sketcher.Constraint("Coincident", 3, 2, 0, 1))
sketch10.addConstraint(Sketcher.Constraint("Vertical", 0))
sketch10.addConstraint(Sketcher.Constraint("Horizontal", 1))
sketch10.addConstraint(Sketcher.Constraint("Vertical", 2))
sketch10.addConstraint(Sketcher.Constraint("Horizontal", 3))
sketch10.addConstraint(Sketcher.Constraint("DistanceX", 1, 1, 1, 2, 8.0))
sketch10.addConstraint(Sketcher.Constraint("DistanceY", 0, 2, 0, 1, 30.0))
sketch10.addConstraint(Sketcher.Constraint("DistanceX", 0, 2, -1, 1, 3.0))
sketch10.addConstraint(Sketcher.Constraint("DistanceY", 0, 2, -1, 1, 47.0))
sketch10.setExpression("Constraints[8]", "Params.sketch10_width")
sketch10.setExpression("Constraints[9]", "Params.sketch10_height")
pad5 = body.newObject("PartDesign::Pad", "Pad004")
pad5.Profile = sketch10
pad5.setExpression("Length", "Params.pad5_length")

doc.recompute()
